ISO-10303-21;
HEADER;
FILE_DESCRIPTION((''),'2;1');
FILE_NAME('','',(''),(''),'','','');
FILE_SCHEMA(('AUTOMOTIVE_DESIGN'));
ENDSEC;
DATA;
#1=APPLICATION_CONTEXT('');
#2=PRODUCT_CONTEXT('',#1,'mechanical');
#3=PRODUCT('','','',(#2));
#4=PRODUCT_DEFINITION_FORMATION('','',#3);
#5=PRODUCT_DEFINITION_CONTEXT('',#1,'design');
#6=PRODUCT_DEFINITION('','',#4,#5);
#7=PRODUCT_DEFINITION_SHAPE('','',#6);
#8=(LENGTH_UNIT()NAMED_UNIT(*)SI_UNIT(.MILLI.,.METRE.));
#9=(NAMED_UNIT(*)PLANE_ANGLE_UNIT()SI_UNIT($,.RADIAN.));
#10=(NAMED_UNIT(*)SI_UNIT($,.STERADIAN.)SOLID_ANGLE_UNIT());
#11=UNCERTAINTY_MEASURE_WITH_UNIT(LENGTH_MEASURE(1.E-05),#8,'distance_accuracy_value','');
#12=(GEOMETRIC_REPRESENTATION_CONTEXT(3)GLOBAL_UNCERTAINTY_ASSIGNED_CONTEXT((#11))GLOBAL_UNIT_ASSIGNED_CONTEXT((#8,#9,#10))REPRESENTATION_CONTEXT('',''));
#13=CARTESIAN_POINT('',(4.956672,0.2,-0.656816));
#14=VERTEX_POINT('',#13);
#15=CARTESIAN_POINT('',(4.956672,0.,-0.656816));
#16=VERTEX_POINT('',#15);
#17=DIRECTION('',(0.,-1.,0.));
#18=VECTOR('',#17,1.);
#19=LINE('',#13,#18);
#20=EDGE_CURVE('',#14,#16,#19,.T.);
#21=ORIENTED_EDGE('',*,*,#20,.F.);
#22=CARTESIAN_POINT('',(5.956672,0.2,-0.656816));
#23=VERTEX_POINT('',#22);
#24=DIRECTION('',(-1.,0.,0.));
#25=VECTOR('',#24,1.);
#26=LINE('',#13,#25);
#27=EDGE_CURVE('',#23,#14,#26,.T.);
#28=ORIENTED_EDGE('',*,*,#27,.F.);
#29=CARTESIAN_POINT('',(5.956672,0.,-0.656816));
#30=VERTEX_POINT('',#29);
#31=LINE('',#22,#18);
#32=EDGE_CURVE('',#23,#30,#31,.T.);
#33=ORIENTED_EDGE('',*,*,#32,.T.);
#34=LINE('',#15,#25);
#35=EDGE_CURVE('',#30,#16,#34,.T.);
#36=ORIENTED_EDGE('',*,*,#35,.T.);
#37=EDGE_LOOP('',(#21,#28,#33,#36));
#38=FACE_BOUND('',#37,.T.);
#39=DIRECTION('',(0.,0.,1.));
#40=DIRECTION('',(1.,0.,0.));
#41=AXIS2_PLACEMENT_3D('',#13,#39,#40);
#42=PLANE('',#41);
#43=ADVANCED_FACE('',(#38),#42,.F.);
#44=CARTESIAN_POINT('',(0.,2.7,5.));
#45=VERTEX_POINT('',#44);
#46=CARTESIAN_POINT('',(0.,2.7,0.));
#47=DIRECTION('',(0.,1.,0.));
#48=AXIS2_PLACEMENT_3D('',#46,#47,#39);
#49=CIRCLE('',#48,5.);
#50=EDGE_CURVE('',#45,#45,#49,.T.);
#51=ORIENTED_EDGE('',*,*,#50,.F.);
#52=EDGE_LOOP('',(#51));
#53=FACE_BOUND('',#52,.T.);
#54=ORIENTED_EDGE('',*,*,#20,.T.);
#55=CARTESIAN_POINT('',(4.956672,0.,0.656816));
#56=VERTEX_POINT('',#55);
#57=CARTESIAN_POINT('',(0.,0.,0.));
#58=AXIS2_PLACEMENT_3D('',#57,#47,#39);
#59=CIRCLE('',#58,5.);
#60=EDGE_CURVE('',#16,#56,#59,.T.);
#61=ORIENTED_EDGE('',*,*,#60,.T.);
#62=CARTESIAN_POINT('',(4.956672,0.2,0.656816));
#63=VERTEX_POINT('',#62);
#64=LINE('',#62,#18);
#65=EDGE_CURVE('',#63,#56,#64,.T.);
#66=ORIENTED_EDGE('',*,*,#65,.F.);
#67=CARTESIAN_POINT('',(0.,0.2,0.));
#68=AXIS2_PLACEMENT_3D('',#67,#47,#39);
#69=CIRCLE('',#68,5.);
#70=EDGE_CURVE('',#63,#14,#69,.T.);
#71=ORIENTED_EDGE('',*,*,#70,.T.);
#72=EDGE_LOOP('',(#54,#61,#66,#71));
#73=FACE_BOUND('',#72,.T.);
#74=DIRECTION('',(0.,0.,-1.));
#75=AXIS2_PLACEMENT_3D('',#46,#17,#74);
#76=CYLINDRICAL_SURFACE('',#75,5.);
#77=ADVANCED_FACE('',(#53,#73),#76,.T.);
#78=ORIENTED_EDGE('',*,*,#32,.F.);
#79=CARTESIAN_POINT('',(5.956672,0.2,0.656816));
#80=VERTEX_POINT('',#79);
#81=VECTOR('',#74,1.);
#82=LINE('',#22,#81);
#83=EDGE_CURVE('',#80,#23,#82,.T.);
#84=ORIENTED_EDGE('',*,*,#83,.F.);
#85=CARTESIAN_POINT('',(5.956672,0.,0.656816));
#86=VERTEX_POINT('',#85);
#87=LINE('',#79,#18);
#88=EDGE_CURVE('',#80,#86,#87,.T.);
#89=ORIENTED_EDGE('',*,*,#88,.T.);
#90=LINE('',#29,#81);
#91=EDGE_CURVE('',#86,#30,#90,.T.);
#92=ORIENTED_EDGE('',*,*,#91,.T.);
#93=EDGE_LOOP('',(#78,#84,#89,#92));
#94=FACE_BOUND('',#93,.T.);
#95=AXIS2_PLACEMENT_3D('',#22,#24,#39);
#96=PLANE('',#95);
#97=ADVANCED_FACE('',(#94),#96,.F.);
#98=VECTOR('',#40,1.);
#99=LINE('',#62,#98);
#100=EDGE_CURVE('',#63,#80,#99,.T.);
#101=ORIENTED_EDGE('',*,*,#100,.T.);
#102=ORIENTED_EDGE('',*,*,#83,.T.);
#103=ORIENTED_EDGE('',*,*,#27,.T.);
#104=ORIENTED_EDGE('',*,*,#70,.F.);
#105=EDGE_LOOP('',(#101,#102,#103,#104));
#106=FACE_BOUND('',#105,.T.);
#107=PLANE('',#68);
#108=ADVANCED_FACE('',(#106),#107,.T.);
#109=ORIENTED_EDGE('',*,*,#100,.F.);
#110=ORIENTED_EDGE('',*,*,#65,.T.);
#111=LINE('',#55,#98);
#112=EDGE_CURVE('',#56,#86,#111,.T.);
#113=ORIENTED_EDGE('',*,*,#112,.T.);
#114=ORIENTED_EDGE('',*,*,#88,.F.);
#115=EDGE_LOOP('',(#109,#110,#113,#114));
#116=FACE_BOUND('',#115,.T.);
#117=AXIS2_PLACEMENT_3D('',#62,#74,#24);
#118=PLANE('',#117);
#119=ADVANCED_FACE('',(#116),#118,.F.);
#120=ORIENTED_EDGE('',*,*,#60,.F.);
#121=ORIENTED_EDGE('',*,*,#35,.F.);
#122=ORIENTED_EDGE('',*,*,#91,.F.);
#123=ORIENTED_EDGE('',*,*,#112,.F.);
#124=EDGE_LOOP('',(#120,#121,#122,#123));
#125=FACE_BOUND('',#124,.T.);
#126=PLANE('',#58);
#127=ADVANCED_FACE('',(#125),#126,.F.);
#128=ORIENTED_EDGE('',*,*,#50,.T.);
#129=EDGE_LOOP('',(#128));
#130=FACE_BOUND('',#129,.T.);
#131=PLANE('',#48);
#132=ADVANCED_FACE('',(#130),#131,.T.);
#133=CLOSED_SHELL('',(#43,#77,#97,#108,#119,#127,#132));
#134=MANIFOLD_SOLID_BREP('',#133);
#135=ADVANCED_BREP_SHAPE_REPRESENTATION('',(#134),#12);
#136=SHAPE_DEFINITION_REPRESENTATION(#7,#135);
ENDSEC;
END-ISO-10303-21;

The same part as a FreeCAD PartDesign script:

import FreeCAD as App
import Part
import Sketcher
from FreeCAD import Vector
Q = App.Units.Quantity

doc = App.newDocument("Part")
body = doc.addObject("PartDesign::Body", "Body")

sketch1 = body.newObject("Sketcher::SketchObject", "Sketch")
sketch1.AttachmentSupport = (doc.getObject("XZ_Plane"), [""])
sketch1.MapMode = "FlatFace"
sketch1.addGeometry(Part.Circle(Vector(0, 0, 0), Vector(0, 0, 1), 5), False)
sketch1.addConstraint(Sketcher.Constraint("Coincident", 0, 3, -1, 1))
sketch1.addConstraint(Sketcher.Constraint("Diameter", 0, Q("10 mm")))
pad1 = body.newObject("PartDesign::Pad", "Pad")
pad1.Profile = sketch1
pad1.Length = 2.7
pad1.Reversed = True

sketch2 = body.newObject("Sketcher::SketchObject", "Sketch001")
sketch2.AttachmentSupport = (doc.getObject("XZ_Plane"), [""])
sketch2.MapMode = "FlatFace"
sketch2.addGeometry(Part.LineSegment(Vector(5, -0.7, 0), Vector(5, 0.7, 0)), False)
sketch2.addGeometry(Part.LineSegment(Vector(5, 0.7, 0), Vector(6, 0.7, 0)), False)
sketch2.addGeometry(Part.LineSegment(Vector(6, 0.7, 0), Vector(6, -0.7, 0)), False)
sketch2.addGeometry(Part.LineSegment(Vector(6, -0.7, 0), Vector(5, -0.7, 0)), False)
sketch2.addConstraint(Sketcher.Constraint("Coincident", 0, 2, 1, 1))
sketch2.addConstraint(Sketcher.Constraint("Coincident", 1, 2, 2, 1))
sketch2.addConstraint(Sketcher.Constraint("Coincident", 2, 2, 3, 1))
sketch2.addConstraint(Sketcher.Constraint("Coincident", 3, 2, 0, 1))
sketch2.addConstraint(Sketcher.Constraint("Vertical", 0))
sketch2.addConstraint(Sketcher.Constraint("Horizontal", 1))
sketch2.addConstraint(Sketcher.Constraint("Vertical", 2))
sketch2.addConstraint(Sketcher.Constraint("Horizontal", 3))
sketch2.addConstraint(Sketcher.Constraint("DistanceX", 1, 1, 1, 2, Q("1 mm")))
sketch2.addConstraint(Sketcher.Constraint("DistanceY", 0, 1, 0, 2, Q("1.313633 mm")))
sketch2.addConstraint(Sketcher.Constraint("DistanceX", -1, 1, 0, 2, Q("4.956672 mm")))
sketch2.addConstraint(Sketcher.Constraint("DistanceY", -1, 1, 0, 2, Q("0.656816 mm")))
pad2 = body.newObject("PartDesign::Pad", "Pad001")
pad2.Profile = sketch2
pad2.Length = 0.2
pad2.Reversed = True

doc.recompute()
